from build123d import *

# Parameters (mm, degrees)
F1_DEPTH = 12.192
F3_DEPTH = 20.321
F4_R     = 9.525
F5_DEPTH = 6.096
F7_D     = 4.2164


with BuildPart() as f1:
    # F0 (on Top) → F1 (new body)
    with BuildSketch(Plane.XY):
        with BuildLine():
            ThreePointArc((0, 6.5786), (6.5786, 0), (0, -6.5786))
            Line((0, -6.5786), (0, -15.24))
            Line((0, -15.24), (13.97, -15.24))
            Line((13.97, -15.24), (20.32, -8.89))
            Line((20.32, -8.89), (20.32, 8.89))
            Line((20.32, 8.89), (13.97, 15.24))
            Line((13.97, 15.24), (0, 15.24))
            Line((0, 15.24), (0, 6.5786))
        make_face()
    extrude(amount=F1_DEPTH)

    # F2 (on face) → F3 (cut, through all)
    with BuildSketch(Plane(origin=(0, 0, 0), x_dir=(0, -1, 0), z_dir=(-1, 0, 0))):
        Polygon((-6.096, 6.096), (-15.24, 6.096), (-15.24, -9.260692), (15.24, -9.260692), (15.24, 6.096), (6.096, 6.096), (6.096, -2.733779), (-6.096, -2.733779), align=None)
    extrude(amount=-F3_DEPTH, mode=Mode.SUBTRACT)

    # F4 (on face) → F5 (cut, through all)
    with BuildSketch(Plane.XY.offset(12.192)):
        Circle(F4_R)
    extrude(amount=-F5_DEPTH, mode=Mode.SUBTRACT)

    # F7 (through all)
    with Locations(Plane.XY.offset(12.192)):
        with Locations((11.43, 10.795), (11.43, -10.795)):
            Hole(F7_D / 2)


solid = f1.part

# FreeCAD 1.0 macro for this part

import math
import FreeCAD as App
import Part
import Sketcher

V = App.Vector
Q = App.Units.Quantity


def add_polygon(sketch, points):
    """Adds a closed chain of lines whose ends are joined by coincident constraints."""
    first, n = sketch.GeometryCount, len(points)
    for a, b in zip(points, points[1:] + points[:1]):
        sketch.addGeometry(Part.LineSegment(App.Vector(*a, 0), App.Vector(*b, 0)), False)
    for i in range(n):
        sketch.addConstraint(Sketcher.Constraint("Coincident", first + i, 2, first + (i + 1) % n, 1))

doc = App.newDocument("Part")
body = doc.addObject("PartDesign::Body", "Body")

# Sketch on XY plane
sketch1 = doc.addObject("Sketcher::SketchObject", "Sketch")
body.addObject(sketch1)
sketch1.AttachmentSupport = (doc.XY_Plane, [""])
sketch1.MapMode = "FlatFace"
sketch1.addGeometry([
    Part.ArcOfCircle(Part.Circle(V(0, 0, 0), V(0, 0, 1), 7), math.radians(-90), math.radians(90)),  # 0
    Part.LineSegment(V(0, -7, 0), V(0, -15, 0)),  # 1
    Part.LineSegment(V(0, -15, 0), V(14, -15, 0)),  # 2
    Part.LineSegment(V(14, -15, 0), V(20, -9, 0)),  # 3
    Part.LineSegment(V(20, -9, 0), V(20, 9, 0)),  # 4
    Part.LineSegment(V(20, 9, 0), V(14, 15, 0)),  # 5
    Part.LineSegment(V(14, 15, 0), V(0, 15, 0)),  # 6
    Part.LineSegment(V(0, 15, 0), V(0, 7, 0)),  # 7
], False)
sketch1.addConstraint([
    Sketcher.Constraint("Coincident", 0, 1, 1, 1),
    Sketcher.Constraint("Coincident", 1, 2, 2, 1),
    Sketcher.Constraint("Coincident", 2, 2, 3, 1),
    Sketcher.Constraint("Coincident", 3, 2, 4, 1),
    Sketcher.Constraint("Coincident", 4, 2, 5, 1),
    Sketcher.Constraint("Coincident", 5, 2, 6, 1),
    Sketcher.Constraint("Coincident", 6, 2, 7, 1),
    Sketcher.Constraint("Coincident", 7, 2, 0, 2),
    Sketcher.Constraint("Vertical", 1),
    Sketcher.Constraint("Horizontal", 2),
    Sketcher.Constraint("Vertical", 4),
    Sketcher.Constraint("Horizontal", 6),
    Sketcher.Constraint("Vertical", 7),
    Sketcher.Constraint("Coincident", 0, 3, -1, 1),
    Sketcher.Constraint("Symmetric", 1, 2, 6, 2, -1, 1),
    Sketcher.Constraint("PointOnObject", 0, 1, -2),
    Sketcher.Constraint("Perpendicular", 3, 5),
    Sketcher.Constraint("Vertical", 2, 2, 5, 2),
    Sketcher.Constraint("Equal", 3, 5),
    Sketcher.Constraint("DistanceY", 4, 1, 4, 2, Q("0.7 in")),
    Sketcher.Constraint("Radius", 0, Q("0.259 in")),
    Sketcher.Constraint("DistanceX", 2, 1, 2, 2, Q("0.55 in")),
    Sketcher.Constraint("DistanceY", 1, 2, -1, 1, Q("0.6 in")),
])
pad1 = doc.addObject("PartDesign::Pad", "Pad")
body.addObject(pad1)
pad1.Profile = sketch1
pad1.Length = Q("0.48 in")

# Sketch on YZ plane
sketch2 = doc.addObject("Sketcher::SketchObject", "Sketch001")
body.addObject(sketch2)
sketch2.AttachmentSupport = (doc.YZ_Plane, [""])
sketch2.MapMode = "FlatFace"
add_polygon(sketch2, [(6, 6), (15, 6), (15, -9), (-15, -9), (-15, 6), (-6, 6), (-6, -3), (6, -3)])  # lines 0-7
sketch2.addConstraint([
    Sketcher.Constraint("Horizontal", 0),
    Sketcher.Constraint("Vertical", 1),
    Sketcher.Constraint("Horizontal", 2),
    Sketcher.Constraint("Vertical", 3),
    Sketcher.Constraint("Horizontal", 4),
    Sketcher.Constraint("Vertical", 5),
    Sketcher.Constraint("Horizontal", 6),
    Sketcher.Constraint("Vertical", 7),
    Sketcher.Constraint("Symmetric", 0, 2, 3, 2, -2),
    Sketcher.Constraint("Equal", 0, 4),
    Sketcher.Constraint("DistanceX", 2, 2, 2, 1, Q("1.2 in")),
    Sketcher.Constraint("DistanceX", 0, 1, 0, 2, Q("0.36 in")),
    Sketcher.Constraint("DistanceY", -1, 1, 0, 2, Q("0.24 in")),
    Sketcher.Constraint("DistanceY", 5, 2, 5, 1, Q("8.829779 mm")),
    Sketcher.Constraint("DistanceY", 1, 2, 1, 1, Q("15.356692 mm")),
])
pocket1 = doc.addObject("PartDesign::Pocket", "Pocket")
body.addObject(pocket1)
pocket1.Profile = sketch2
pocket1.Type = "ThroughAll"
pocket1.Reversed = True

# Sketch on XY plane
sketch3 = doc.addObject("Sketcher::SketchObject", "Sketch002")
body.addObject(sketch3)
sketch3.AttachmentSupport = (doc.XY_Plane, [""])
sketch3.MapMode = "FlatFace"
sketch3.AttachmentOffset = App.Placement(V(0, 0, 0.48 * 25.4), App.Rotation())
sketch3.addGeometry(Part.Circle(V(0, 0, 0), V(0, 0, 1), 10), False)
sketch3.addConstraint([
    Sketcher.Constraint("Coincident", 0, 3, -1, 1),
    Sketcher.Constraint("Diameter", 0, Q("0.75 in")),
])
pocket2 = doc.addObject("PartDesign::Pocket", "Pocket001")
body.addObject(pocket2)
pocket2.Profile = sketch3
pocket2.Length = Q("0.24 in")

# Sketch on XY plane
sketch4 = doc.addObject("Sketcher::SketchObject", "Sketch003")
body.addObject(sketch4)
sketch4.AttachmentSupport = (doc.XY_Plane, [""])
sketch4.MapMode = "FlatFace"
sketch4.AttachmentOffset = App.Placement(V(0, 0, 0.48 * 25.4), App.Rotation())
sketch4.addGeometry([
    Part.Circle(V(11.4, 10.8, 0), V(0, 0, 1), 2.1),
    Part.Circle(V(11.4, -10.8, 0), V(0, 0, 1), 2.1),
], False)
sketch4.addConstraint([
    Sketcher.Constraint("Equal", 0, 1),
    Sketcher.Constraint("Symmetric", 0, 3, 1, 3, -1),
    Sketcher.Constraint("Diameter", 0, Q("0.166 in")),
    Sketcher.Constraint("DistanceX", -1, 1, 0, 3, Q("0.45 in")),
    Sketcher.Constraint("DistanceY", 1, 3, 0, 3, Q("0.85 in")),
])
doc.recompute()
hole = doc.addObject("PartDesign::Hole", "Hole")
body.addObject(hole)
hole.Profile = sketch4
hole.ThreadType = "None"
hole.Diameter = Q("0.166 in")
hole.DepthType = "ThroughAll"

doc.recompute()
